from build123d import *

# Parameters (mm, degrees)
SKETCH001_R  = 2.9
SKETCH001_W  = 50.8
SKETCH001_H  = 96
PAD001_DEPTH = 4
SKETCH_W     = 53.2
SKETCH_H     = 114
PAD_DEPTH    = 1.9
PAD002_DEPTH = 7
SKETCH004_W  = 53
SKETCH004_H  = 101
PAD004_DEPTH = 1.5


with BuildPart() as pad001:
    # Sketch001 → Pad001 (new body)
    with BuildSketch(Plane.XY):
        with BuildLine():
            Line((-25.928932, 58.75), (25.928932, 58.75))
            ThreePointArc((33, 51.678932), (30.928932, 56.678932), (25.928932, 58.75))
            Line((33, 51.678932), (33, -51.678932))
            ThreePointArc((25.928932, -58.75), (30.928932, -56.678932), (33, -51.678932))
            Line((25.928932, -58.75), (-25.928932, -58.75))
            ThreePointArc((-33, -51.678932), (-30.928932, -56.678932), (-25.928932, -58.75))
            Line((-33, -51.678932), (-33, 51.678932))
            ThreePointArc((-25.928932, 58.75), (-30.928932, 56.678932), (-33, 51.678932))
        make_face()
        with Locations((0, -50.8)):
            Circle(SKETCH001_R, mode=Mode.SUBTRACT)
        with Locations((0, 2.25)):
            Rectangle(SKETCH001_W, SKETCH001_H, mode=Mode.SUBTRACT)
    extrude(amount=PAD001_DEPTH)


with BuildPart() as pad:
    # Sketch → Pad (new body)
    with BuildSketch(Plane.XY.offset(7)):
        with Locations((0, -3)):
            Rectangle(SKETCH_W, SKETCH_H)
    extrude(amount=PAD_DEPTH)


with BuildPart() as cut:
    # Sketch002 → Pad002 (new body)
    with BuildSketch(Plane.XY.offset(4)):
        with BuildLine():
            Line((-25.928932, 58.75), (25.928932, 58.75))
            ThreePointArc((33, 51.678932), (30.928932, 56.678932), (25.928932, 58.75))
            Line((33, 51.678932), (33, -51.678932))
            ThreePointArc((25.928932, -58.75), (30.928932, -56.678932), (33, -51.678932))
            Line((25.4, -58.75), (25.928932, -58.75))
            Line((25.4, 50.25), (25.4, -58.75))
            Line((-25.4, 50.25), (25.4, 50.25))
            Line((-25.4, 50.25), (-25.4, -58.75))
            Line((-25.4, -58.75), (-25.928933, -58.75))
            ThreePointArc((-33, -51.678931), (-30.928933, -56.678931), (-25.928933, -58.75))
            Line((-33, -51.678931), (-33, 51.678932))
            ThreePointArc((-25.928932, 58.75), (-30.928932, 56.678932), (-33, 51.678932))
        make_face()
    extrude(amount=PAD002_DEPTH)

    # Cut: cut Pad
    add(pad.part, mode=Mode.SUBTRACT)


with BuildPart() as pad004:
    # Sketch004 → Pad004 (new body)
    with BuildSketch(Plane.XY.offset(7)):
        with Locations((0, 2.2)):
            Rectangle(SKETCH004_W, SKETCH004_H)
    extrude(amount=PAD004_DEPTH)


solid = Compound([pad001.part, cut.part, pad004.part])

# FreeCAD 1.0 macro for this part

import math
import FreeCAD as App
import Part
import Sketcher
Q = App.Units.Quantity

doc = App.newDocument("Part")
body = doc.addObject("PartDesign::Body", "Body")

sketch1 = doc.addObject("Sketcher::SketchObject", "Sketch")
body.addObject(sketch1)
sketch1.AttachmentSupport = (doc.XY_Plane, [""])
sketch1.MapMode = "FlatFace"
sketch1.addGeometry(Part.LineSegment(App.Vector(25.928932, 58.75, 0), App.Vector(-25.928932, 58.75, 0)), False)
sketch1.addGeometry(Part.ArcOfCircle(Part.Circle(App.Vector(-25.928932, 51.678932, 0), App.Vector(0, 0, 1), 7.071068), math.radians(90.000004), math.radians(179.999996)), False)
sketch1.addGeometry(Part.LineSegment(App.Vector(-33, 51.678932, 0), App.Vector(-33, -51.678932, 0)), False)
sketch1.addGeometry(Part.ArcOfCircle(Part.Circle(App.Vector(-25.928932, -51.678932, 0), App.Vector(0, 0, 1), 7.071068), math.radians(-179.999996), math.radians(-90.000004)), False)
sketch1.addGeometry(Part.LineSegment(App.Vector(-25.928932, -58.75, 0), App.Vector(25.928932, -58.75, 0)), False)
sketch1.addGeometry(Part.ArcOfCircle(Part.Circle(App.Vector(25.928932, -51.678932, 0), App.Vector(0, 0, 1), 7.071068), math.radians(-89.999996), math.radians(-0.000004)), False)
sketch1.addGeometry(Part.LineSegment(App.Vector(33, -51.678932, 0), App.Vector(33, 51.678932, 0)), False)
sketch1.addGeometry(Part.ArcOfCircle(Part.Circle(App.Vector(25.928932, 51.678932, 0), App.Vector(0, 0, 1), 7.071068), math.radians(0.000004), math.radians(89.999996)), False)
sketch1.addGeometry(Part.Circle(App.Vector(0, -50.8, 0), App.Vector(0, 0, 1), 2.9), False)
sketch1.addGeometry(Part.LineSegment(App.Vector(-25.4, -45.75, 0), App.Vector(-25.4, 50.25, 0)), False)
sketch1.addGeometry(Part.LineSegment(App.Vector(-25.4, 50.25, 0), App.Vector(25.4, 50.25, 0)), False)
sketch1.addGeometry(Part.LineSegment(App.Vector(25.4, 50.25, 0), App.Vector(25.4, -45.75, 0)), False)
sketch1.addGeometry(Part.LineSegment(App.Vector(25.4, -45.75, 0), App.Vector(-25.4, -45.75, 0)), False)
sketch1.addConstraint(Sketcher.Constraint("Tangent", 0, 2, 1, 1))
sketch1.addConstraint(Sketcher.Constraint("Tangent", 1, 2, 2, 1))
sketch1.addConstraint(Sketcher.Constraint("Tangent", 2, 2, 3, 1))
sketch1.addConstraint(Sketcher.Constraint("Tangent", 3, 2, 4, 1))
sketch1.addConstraint(Sketcher.Constraint("Tangent", 4, 2, 5, 1))
sketch1.addConstraint(Sketcher.Constraint("Tangent", 5, 2, 6, 1))
sketch1.addConstraint(Sketcher.Constraint("Tangent", 6, 2, 7, 1))
sketch1.addConstraint(Sketcher.Constraint("Tangent", 7, 2, 0, 1))
sketch1.addConstraint(Sketcher.Constraint("Coincident", 9, 2, 10, 1))
sketch1.addConstraint(Sketcher.Constraint("Coincident", 10, 2, 11, 1))
sketch1.addConstraint(Sketcher.Constraint("Coincident", 11, 2, 12, 1))
sketch1.addConstraint(Sketcher.Constraint("Coincident", 12, 2, 9, 1))
sketch1.addConstraint(Sketcher.Constraint("Horizontal", 0))
sketch1.addConstraint(Sketcher.Constraint("Vertical", 2))
sketch1.addConstraint(Sketcher.Constraint("Horizontal", 4))
sketch1.addConstraint(Sketcher.Constraint("Vertical", 6))
sketch1.addConstraint(Sketcher.Constraint("Vertical", 9))
sketch1.addConstraint(Sketcher.Constraint("Horizontal", 10))
sketch1.addConstraint(Sketcher.Constraint("Vertical", 11))
sketch1.addConstraint(Sketcher.Constraint("Horizontal", 12))
sketch1.addConstraint(Sketcher.Constraint("Equal", 1, 3))
sketch1.addConstraint(Sketcher.Constraint("Equal", 3, 5))
sketch1.addConstraint(Sketcher.Constraint("Equal", 5, 7))
sketch1.addConstraint(Sketcher.Constraint("Symmetric", 1, 3, 5, 3, -1, 1))
sketch1.addConstraint(Sketcher.Constraint("PointOnObject", 8, 3, -2))
sketch1.addConstraint(Sketcher.Constraint("Diameter", 8, Q("5.8 mm")))
sketch1.addConstraint(Sketcher.Constraint("DistanceY", 9, 1, 9, 2, Q("96 mm")))
sketch1.addConstraint(Sketcher.Constraint("DistanceX", 10, 1, 10, 2, Q("50.8 mm")))
sketch1.addConstraint(Sketcher.Constraint("DistanceX", 1, 2, -1, 1, Q("33 mm")))
sketch1.addConstraint(Sketcher.Constraint("DistanceY", 4, 2, 11, 2, Q("13 mm")))
sketch1.addConstraint(Sketcher.Constraint("DistanceY", 8, 3, -1, 1, Q("50.8 mm")))
sketch1.addConstraint(Sketcher.Constraint("DistanceX", 9, 2, -1, 1, Q("25.4 mm")))
sketch1.addConstraint(Sketcher.Constraint("DistanceY", 9, 2, 0, 2, Q("8.5 mm")))
sketch1.addConstraint(Sketcher.Constraint("Radius", 1, Q("7.071068 mm")))
pad1 = doc.addObject("PartDesign::Pad", "Pad")
body.addObject(pad1)
pad1.Profile = sketch1
pad1.Length = 4
body2 = doc.addObject("PartDesign::Body", "Body001")

sketch2 = doc.addObject("Sketcher::SketchObject", "Sketch001")
body2.addObject(sketch2)
sketch2.AttachmentSupport = (doc.getObject("XY_Plane001"), [""])
sketch2.MapMode = "FlatFace"
sketch2.AttachmentOffset = App.Placement(App.Vector(0, 0, 7), App.Rotation())
sketch2.addGeometry(Part.LineSegment(App.Vector(-26.6, 54, 0), App.Vector(-26.6, -60, 0)), False)
sketch2.addGeometry(Part.LineSegment(App.Vector(-26.6, -60, 0), App.Vector(26.6, -60, 0)), False)
sketch2.addGeometry(Part.LineSegment(App.Vector(26.6, -60, 0), App.Vector(26.6, 54, 0)), False)
sketch2.addGeometry(Part.LineSegment(App.Vector(26.6, 54, 0), App.Vector(-26.6, 54, 0)), False)
sketch2.addConstraint(Sketcher.Constraint("Coincident", 0, 2, 1, 1))
sketch2.addConstraint(Sketcher.Constraint("Coincident", 1, 2, 2, 1))
sketch2.addConstraint(Sketcher.Constraint("Coincident", 2, 2, 3, 1))
sketch2.addConstraint(Sketcher.Constraint("Coincident", 3, 2, 0, 1))
sketch2.addConstraint(Sketcher.Constraint("Vertical", 0))
sketch2.addConstraint(Sketcher.Constraint("Horizontal", 1))
sketch2.addConstraint(Sketcher.Constraint("Vertical", 2))
sketch2.addConstraint(Sketcher.Constraint("Horizontal", 3))
sketch2.addConstraint(Sketcher.Constraint("DistanceY", 0, 2, 0, 1, Q("114 mm")))
sketch2.addConstraint(Sketcher.Constraint("DistanceX", 1, 1, 1, 2, Q("53.2 mm")))
sketch2.addConstraint(Sketcher.Constraint("DistanceY", 0, 2, -1, 1, Q("60 mm")))
sketch2.addConstraint(Sketcher.Constraint("DistanceX", 0, 2, -1, 1, Q("26.6 mm")))
pad2 = doc.addObject("PartDesign::Pad", "Pad001")
body2.addObject(pad2)
pad2.Profile = sketch2
pad2.Length = 1.9
body3 = doc.addObject("PartDesign::Body", "Body002")

sketch3 = doc.addObject("Sketcher::SketchObject", "Sketch002")
body3.addObject(sketch3)
sketch3.AttachmentSupport = (doc.getObject("XY_Plane002"), [""])
sketch3.MapMode = "FlatFace"
sketch3.AttachmentOffset = App.Placement(App.Vector(0, 0, 4), App.Rotation())
sketch3.addGeometry(Part.LineSegment(App.Vector(25.928932, 58.75, 0), App.Vector(-25.928932, 58.75, 0)), False)
sketch3.addGeometry(Part.ArcOfCircle(Part.Circle(App.Vector(-25.928932, 51.678932, 0), App.Vector(0, 0, 1), 7.071068), math.radians(90.000004), math.radians(179.999996)), False)
sketch3.addGeometry(Part.LineSegment(App.Vector(-33, 51.678932, 0), App.Vector(-33, -51.678931, 0)), False)
sketch3.addGeometry(Part.ArcOfCircle(Part.Circle(App.Vector(-25.928932, -51.678932, 0), App.Vector(0, 0, 1), 7.071068), math.radians(179.999996), math.radians(269.999988)), False)
sketch3.addGeometry(Part.LineSegment(App.Vector(-25.928933, -58.75, 0), App.Vector(-25.4, -58.75, 0)), False)
sketch3.addGeometry(Part.LineSegment(App.Vector(-25.4, -58.75, 0), App.Vector(-25.4, 50.25, 0)), False)
sketch3.addGeometry(Part.LineSegment(App.Vector(-25.4, 50.25, 0), App.Vector(25.4, 50.25, 0)), False)
sketch3.addGeometry(Part.LineSegment(App.Vector(25.4, 50.25, 0), App.Vector(25.4, -58.75, 0)), False)
sketch3.addGeometry(Part.LineSegment(App.Vector(25.4, -58.75, 0), App.Vector(25.928932, -58.75, 0)), False)
sketch3.addGeometry(Part.ArcOfCircle(Part.Circle(App.Vector(25.928932, -51.678932, 0), App.Vector(0, 0, 1), 7.071068), math.radians(-89.999996), math.radians(-0.000004)), False)
sketch3.addGeometry(Part.LineSegment(App.Vector(33, -51.678932, 0), App.Vector(33, 51.678932, 0)), False)
sketch3.addGeometry(Part.ArcOfCircle(Part.Circle(App.Vector(25.928932, 51.678932, 0), App.Vector(0, 0, 1), 7.071068), math.radians(0.000004), math.radians(89.999996)), False)
sketch3.addConstraint(Sketcher.Constraint("Tangent", 0, 2, 1, 1))
sketch3.addConstraint(Sketcher.Constraint("Tangent", 1, 2, 2, 1))
sketch3.addConstraint(Sketcher.Constraint("Tangent", 2, 2, 3, 1))
sketch3.addConstraint(Sketcher.Constraint("Tangent", 3, 2, 4, 1))
sketch3.addConstraint(Sketcher.Constraint("Coincident", 4, 2, 5, 1))
sketch3.addConstraint(Sketcher.Constraint("Coincident", 5, 2, 6, 1))
sketch3.addConstraint(Sketcher.Constraint("Coincident", 6, 2, 7, 1))
sketch3.addConstraint(Sketcher.Constraint("Coincident", 7, 2, 8, 1))
sketch3.addConstraint(Sketcher.Constraint("Tangent", 8, 2, 9, 1))
sketch3.addConstraint(Sketcher.Constraint("Tangent", 9, 2, 10, 1))
sketch3.addConstraint(Sketcher.Constraint("Tangent", 10, 2, 11, 1))
sketch3.addConstraint(Sketcher.Constraint("Tangent", 11, 2, 0, 1))
sketch3.addConstraint(Sketcher.Constraint("Horizontal", 0))
sketch3.addConstraint(Sketcher.Constraint("Vertical", 2))
sketch3.addConstraint(Sketcher.Constraint("Horizontal", 4))
sketch3.addConstraint(Sketcher.Constraint("Vertical", 5))
sketch3.addConstraint(Sketcher.Constraint("Horizontal", 6))
sketch3.addConstraint(Sketcher.Constraint("Vertical", 7))
sketch3.addConstraint(Sketcher.Constraint("Horizontal", 8))
sketch3.addConstraint(Sketcher.Constraint("Vertical", 10))
sketch3.addConstraint(Sketcher.Constraint("Equal", 1, 3))
sketch3.addConstraint(Sketcher.Constraint("Equal", 3, 9))
sketch3.addConstraint(Sketcher.Constraint("Equal", 9, 11))
sketch3.addConstraint(Sketcher.Constraint("Symmetric", 1, 3, 9, 3, -1, 1))
sketch3.addConstraint(Sketcher.Constraint("Symmetric", 4, 2, 7, 2, -2))
sketch3.addConstraint(Sketcher.Constraint("DistanceY", 5, 1, 5, 2, Q("109 mm")))
sketch3.addConstraint(Sketcher.Constraint("DistanceX", 6, 1, 6, 2, Q("50.8 mm")))
sketch3.addConstraint(Sketcher.Constraint("DistanceX", 1, 2, -1, 1, Q("33 mm")))
sketch3.addConstraint(Sketcher.Constraint("DistanceY", 5, 2, 0, 2, Q("8.5 mm")))
sketch3.addConstraint(Sketcher.Constraint("Radius", 1, Q("7.071068 mm")))
pad3 = doc.addObject("PartDesign::Pad", "Pad002")
body3.addObject(pad3)
pad3.Profile = sketch3
pad3.Length = 7
doc.recompute()

boolean = doc.addObject("PartDesign::Boolean", "Boolean")
body3.addObject(boolean)
boolean.Type = "Cut"
boolean.addObjects([body2])
body4 = doc.addObject("PartDesign::Body", "Body003")

sketch4 = doc.addObject("Sketcher::SketchObject", "Sketch003")
body4.addObject(sketch4)
sketch4.AttachmentSupport = (doc.getObject("XY_Plane003"), [""])
sketch4.MapMode = "FlatFace"
sketch4.AttachmentOffset = App.Placement(App.Vector(0, 0, 7), App.Rotation())
sketch4.addGeometry(Part.LineSegment(App.Vector(-26.5, 52.7, 0), App.Vector(-26.5, -48.3, 0)), False)
sketch4.addGeometry(Part.LineSegment(App.Vector(-26.5, -48.3, 0), App.Vector(26.5, -48.3, 0)), False)
sketch4.addGeometry(Part.LineSegment(App.Vector(26.5, -48.3, 0), App.Vector(26.5, 52.7, 0)), False)
sketch4.addGeometry(Part.LineSegment(App.Vector(26.5, 52.7, 0), App.Vector(-26.5, 52.7, 0)), False)
sketch4.addConstraint(Sketcher.Constraint("Coincident", 0, 2, 1, 1))
sketch4.addConstraint(Sketcher.Constraint("Coincident", 1, 2, 2, 1))
sketch4.addConstraint(Sketcher.Constraint("Coincident", 2, 2, 3, 1))
sketch4.addConstraint(Sketcher.Constraint("Coincident", 3, 2, 0, 1))
sketch4.addConstraint(Sketcher.Constraint("Vertical", 0))
sketch4.addConstraint(Sketcher.Constraint("Horizontal", 1))
sketch4.addConstraint(Sketcher.Constraint("Vertical", 2))
sketch4.addConstraint(Sketcher.Constraint("Horizontal", 3))
sketch4.addConstraint(Sketcher.Constraint("DistanceX", 1, 1, 1, 2, Q("53 mm")))
sketch4.addConstraint(Sketcher.Constraint("DistanceY", 0, 2, 0, 1, Q("101 mm")))
sketch4.addConstraint(Sketcher.Constraint("DistanceX", 0, 2, -1, 1, Q("26.5 mm")))
sketch4.addConstraint(Sketcher.Constraint("DistanceY", 0, 2, -1, 1, Q("48.3 mm")))
pad4 = doc.addObject("PartDesign::Pad", "Pad003")
body4.addObject(pad4)
pad4.Profile = sketch4
pad4.Length = 1.5

doc.recompute()
